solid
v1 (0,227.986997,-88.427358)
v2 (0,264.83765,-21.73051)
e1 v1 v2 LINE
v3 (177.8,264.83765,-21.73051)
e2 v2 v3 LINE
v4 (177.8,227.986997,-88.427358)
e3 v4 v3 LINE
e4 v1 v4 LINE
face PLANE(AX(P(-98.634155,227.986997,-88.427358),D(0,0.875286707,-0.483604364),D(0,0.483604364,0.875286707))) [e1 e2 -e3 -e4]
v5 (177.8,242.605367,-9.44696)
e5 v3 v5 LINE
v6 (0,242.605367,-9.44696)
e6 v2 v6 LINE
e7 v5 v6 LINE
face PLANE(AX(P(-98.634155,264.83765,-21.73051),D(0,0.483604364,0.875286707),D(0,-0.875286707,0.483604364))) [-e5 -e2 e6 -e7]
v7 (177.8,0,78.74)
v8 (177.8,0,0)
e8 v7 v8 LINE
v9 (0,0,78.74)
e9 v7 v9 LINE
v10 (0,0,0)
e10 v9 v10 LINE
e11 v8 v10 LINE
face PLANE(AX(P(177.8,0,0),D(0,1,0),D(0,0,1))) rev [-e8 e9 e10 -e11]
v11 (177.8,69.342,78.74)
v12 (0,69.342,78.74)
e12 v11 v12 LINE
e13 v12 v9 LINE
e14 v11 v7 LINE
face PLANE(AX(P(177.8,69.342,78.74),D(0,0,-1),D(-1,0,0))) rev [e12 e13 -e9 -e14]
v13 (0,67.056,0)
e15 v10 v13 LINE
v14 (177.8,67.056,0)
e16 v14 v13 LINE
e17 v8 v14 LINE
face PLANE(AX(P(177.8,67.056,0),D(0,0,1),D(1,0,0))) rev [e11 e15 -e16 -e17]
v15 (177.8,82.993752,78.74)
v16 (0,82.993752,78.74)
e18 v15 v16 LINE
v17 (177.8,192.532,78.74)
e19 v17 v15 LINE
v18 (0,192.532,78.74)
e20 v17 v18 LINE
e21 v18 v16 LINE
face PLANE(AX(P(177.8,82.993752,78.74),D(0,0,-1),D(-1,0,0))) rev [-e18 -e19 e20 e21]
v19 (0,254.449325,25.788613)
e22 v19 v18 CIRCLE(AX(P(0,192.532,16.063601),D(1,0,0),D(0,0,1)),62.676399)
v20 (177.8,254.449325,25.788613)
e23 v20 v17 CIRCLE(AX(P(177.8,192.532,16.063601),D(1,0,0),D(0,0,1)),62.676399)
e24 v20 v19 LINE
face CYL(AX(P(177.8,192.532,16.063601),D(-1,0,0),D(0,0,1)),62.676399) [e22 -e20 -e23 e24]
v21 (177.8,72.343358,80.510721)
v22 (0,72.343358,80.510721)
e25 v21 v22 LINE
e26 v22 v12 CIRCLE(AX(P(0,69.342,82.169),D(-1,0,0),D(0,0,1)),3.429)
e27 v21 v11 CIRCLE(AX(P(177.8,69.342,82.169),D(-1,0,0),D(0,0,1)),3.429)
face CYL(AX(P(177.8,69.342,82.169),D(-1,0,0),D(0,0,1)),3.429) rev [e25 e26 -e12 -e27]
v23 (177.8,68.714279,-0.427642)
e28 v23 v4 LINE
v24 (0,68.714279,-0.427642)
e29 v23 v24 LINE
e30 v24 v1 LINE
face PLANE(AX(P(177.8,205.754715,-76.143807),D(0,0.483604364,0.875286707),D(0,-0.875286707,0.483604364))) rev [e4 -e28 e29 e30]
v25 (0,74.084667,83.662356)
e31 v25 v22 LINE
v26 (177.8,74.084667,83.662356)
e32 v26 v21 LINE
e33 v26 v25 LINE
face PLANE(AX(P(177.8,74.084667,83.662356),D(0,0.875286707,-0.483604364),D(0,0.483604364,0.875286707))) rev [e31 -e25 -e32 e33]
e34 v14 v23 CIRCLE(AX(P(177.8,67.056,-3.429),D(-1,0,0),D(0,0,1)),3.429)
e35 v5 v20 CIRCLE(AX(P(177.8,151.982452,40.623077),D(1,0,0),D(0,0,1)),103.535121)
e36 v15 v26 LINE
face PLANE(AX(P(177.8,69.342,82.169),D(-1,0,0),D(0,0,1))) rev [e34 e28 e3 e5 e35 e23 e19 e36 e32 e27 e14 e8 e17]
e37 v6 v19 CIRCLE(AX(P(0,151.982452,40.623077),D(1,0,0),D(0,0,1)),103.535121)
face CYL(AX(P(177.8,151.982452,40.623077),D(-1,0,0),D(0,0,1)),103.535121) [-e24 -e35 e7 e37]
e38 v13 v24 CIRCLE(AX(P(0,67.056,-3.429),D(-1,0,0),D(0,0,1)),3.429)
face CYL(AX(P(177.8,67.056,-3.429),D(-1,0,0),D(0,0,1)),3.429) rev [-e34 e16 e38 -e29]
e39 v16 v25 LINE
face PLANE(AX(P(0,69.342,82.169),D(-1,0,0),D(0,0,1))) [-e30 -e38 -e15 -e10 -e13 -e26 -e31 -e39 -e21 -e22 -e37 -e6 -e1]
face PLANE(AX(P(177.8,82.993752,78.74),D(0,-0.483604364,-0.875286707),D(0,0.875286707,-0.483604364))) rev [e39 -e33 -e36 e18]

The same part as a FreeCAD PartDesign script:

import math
import FreeCAD as App
import Part
import Sketcher
Q = App.Units.Quantity


def add_polygon(sketch, points):
    """Adds a closed chain of lines whose ends are joined by coincident constraints."""
    first, n = sketch.GeometryCount, len(points)
    for a, b in zip(points, points[1:] + points[:1]):
        sketch.addGeometry(Part.LineSegment(App.Vector(*a, 0), App.Vector(*b, 0)), False)
    for i in range(n):
        sketch.addConstraint(Sketcher.Constraint("Coincident", first + i, 2, first + (i + 1) % n, 1))

doc = App.newDocument("Part")
body = doc.addObject("PartDesign::Body", "Body")

# Sketch on YZ plane
sketch1 = body.newObject("Sketcher::SketchObject", "Sketch")
sketch1.AttachmentSupport = (doc.getObject("YZ_Plane"), [""])
sketch1.MapMode = "FlatFace"
sketch1.addGeometry(Part.LineSegment(App.Vector(205.754715, -76.143807, 0), App.Vector(242.605367, -9.44696, 0)), False)
sketch1.addGeometry(Part.ArcOfCircle(Part.Circle(App.Vector(151.982452, 40.623077, 0), App.Vector(0, 0, 1), 103.535121), math.radians(-28.921075), math.radians(-8.237663)), False)
sketch1.addGeometry(Part.ArcOfCircle(Part.Circle(App.Vector(192.532, 16.063601, 0), App.Vector(0, 0, 1), 62.676399), math.radians(8.926207), math.radians(90)), False)
sketch1.addGeometry(Part.LineSegment(App.Vector(192.532, 78.74, 0), App.Vector(82.993752, 78.74, 0)), False)
sketch1.addGeometry(Part.LineSegment(App.Vector(82.993752, 78.74, 0), App.Vector(74.084667, 83.662356, 0)), False)
sketch1.addGeometry(Part.LineSegment(App.Vector(74.084667, 83.662356, 0), App.Vector(72.343358, 80.510721, 0)), False)
sketch1.addGeometry(Part.ArcOfCircle(Part.Circle(App.Vector(69.342, 82.169, 0), App.Vector(0, 0, 1), 3.429), math.radians(-90), math.radians(-28.921074)), False)
sketch1.addGeometry(Part.LineSegment(App.Vector(69.342, 78.74, 0), App.Vector(0, 78.74, 0)), False)
sketch1.addGeometry(Part.LineSegment(App.Vector(0, 78.74, 0), App.Vector(0, 0, 0)), False)
sketch1.addGeometry(Part.LineSegment(App.Vector(0, 0, 0), App.Vector(67.056, 0, 0)), False)
sketch1.addGeometry(Part.ArcOfCircle(Part.Circle(App.Vector(67.056, -3.429, 0), App.Vector(0, 0, 1), 3.429), math.radians(61.078925), math.radians(90)), False)
sketch1.addGeometry(Part.LineSegment(App.Vector(68.714279, -0.427642, 0), App.Vector(205.754715, -76.143807, 0)), False)
sketch1.addConstraint(Sketcher.Constraint("Tangent", 0, 2, 1, 1))
sketch1.addConstraint(Sketcher.Constraint("Coincident", 1, 2, 2, 1))
sketch1.addConstraint(Sketcher.Constraint("Tangent", 2, 2, 3, 1))
sketch1.addConstraint(Sketcher.Constraint("Coincident", 3, 2, 4, 1))
sketch1.addConstraint(Sketcher.Constraint("Coincident", 4, 2, 5, 1))
sketch1.addConstraint(Sketcher.Constraint("Tangent", 5, 2, 6, 2))
sketch1.addConstraint(Sketcher.Constraint("Tangent", 6, 1, 7, 1))
sketch1.addConstraint(Sketcher.Constraint("Coincident", 7, 2, 8, 1))
sketch1.addConstraint(Sketcher.Constraint("Coincident", 8, 2, 9, 1))
sketch1.addConstraint(Sketcher.Constraint("Tangent", 9, 2, 10, 2))
sketch1.addConstraint(Sketcher.Constraint("Tangent", 10, 1, 11, 1))
sketch1.addConstraint(Sketcher.Constraint("Coincident", 11, 2, 0, 1))
sketch1.addConstraint(Sketcher.Constraint("Horizontal", 3))
sketch1.addConstraint(Sketcher.Constraint("Horizontal", 7))
sketch1.addConstraint(Sketcher.Constraint("Vertical", 8))
sketch1.addConstraint(Sketcher.Constraint("Horizontal", 9))
sketch1.addConstraint(Sketcher.Constraint("Coincident", 8, 2, -1, 1))
sketch1.addConstraint(Sketcher.Constraint("Equal", 6, 10))
sketch1.addConstraint(Sketcher.Constraint("Perpendicular", 0, 4))
sketch1.addConstraint(Sketcher.Constraint("Perpendicular", 4, 5))
sketch1.addConstraint(Sketcher.Constraint("Perpendicular", 5, 11))
sketch1.addConstraint(Sketcher.Constraint("Horizontal", 3, 2, 6, 1))
sketch1.addConstraint(Sketcher.Constraint("Distance", 0, Q("3 in")))
sketch1.addConstraint(Sketcher.Constraint("DistanceY", 8, 2, 8, 1, Q("3.1 in")))
sketch1.addConstraint(Sketcher.Constraint("Radius", 6, Q("0.135 in")))
sketch1.addConstraint(Sketcher.Constraint("DistanceX", 7, 2, 7, 1, Q("2.73 in")))
sketch1.addConstraint(Sketcher.Constraint("DistanceX", 9, 1, 9, 2, Q("2.64 in")))
sketch1.addConstraint(Sketcher.Constraint("DistanceX", -1, 1, 2, 3, Q("7.58 in")))
sketch1.addConstraint(Sketcher.Constraint("Radius", 2, Q("62.676399 mm")))
sketch1.addConstraint(Sketcher.Constraint("Radius", 1, Q("103.535121 mm")))
sketch1.addConstraint(Sketcher.Constraint("DistanceX", 3, 2, 1, 3, Q("68.9887 mm")))
sketch1.addConstraint(Sketcher.Constraint("Distance", 5, Q("3.600689 mm")))
sketch1.addConstraint(Sketcher.Constraint("Distance", 11, Q("156.566339 mm")))
pad1 = body.newObject("PartDesign::Pad", "Pad")
pad1.Profile = sketch1
pad1.Length = Q("7 in")

# Sketch on YZ plane
sketch2 = body.newObject("Sketcher::SketchObject", "Sketch001")
sketch2.AttachmentSupport = (doc.getObject("YZ_Plane"), [""])
sketch2.MapMode = "FlatFace"
sketch2.AttachmentOffset = App.Placement(App.Vector(0, 0, 7 * 25.4), App.Rotation())
add_polygon(sketch2, [(205.754715, -76.143807), (227.986997, -88.427358), (264.83765, -21.73051), (242.605367, -9.44696)])  # lines 0-3
sketch2.addConstraint(Sketcher.Constraint("Perpendicular", 0, 1))
sketch2.addConstraint(Sketcher.Constraint("Perpendicular", 1, 2))
sketch2.addConstraint(Sketcher.Constraint("Perpendicular", 2, 3))
sketch2.addConstraint(Sketcher.Constraint("Distance", 0, Q("1 in")))
sketch2.addConstraint(Sketcher.Constraint("Distance", 1, Q("3 in")))
sketch2.addConstraint(Sketcher.Constraint("DistanceX", -1, 1, 1, 2, Q("264.83765 mm")))
sketch2.addConstraint(Sketcher.Constraint("DistanceY", 1, 2, -1, 1, Q("21.73051 mm")))
sketch2.addConstraint(Sketcher.Constraint("DistanceY", 2, 2, -1, 1, Q("9.44696 mm")))
pad2 = body.newObject("PartDesign::Pad", "Pad001")
pad2.Profile = sketch2
pad2.Length = Q("7 in")
pad2.Reversed = True

doc.recompute()
